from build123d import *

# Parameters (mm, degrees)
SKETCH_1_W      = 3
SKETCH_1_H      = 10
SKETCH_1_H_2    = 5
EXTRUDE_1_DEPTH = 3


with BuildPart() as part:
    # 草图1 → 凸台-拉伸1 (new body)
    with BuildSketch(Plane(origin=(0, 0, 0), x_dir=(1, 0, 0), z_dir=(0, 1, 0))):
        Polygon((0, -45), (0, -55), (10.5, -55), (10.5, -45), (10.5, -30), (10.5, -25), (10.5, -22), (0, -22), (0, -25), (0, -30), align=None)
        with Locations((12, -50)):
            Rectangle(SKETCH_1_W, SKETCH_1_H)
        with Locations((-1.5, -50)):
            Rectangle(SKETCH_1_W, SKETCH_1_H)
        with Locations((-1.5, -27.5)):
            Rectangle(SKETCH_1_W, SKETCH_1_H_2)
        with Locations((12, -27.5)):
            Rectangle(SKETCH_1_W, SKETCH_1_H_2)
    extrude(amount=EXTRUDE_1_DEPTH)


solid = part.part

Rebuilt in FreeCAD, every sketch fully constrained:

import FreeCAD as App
import Part
import Sketcher
from FreeCAD import Vector


def add_polygon(sketch, points):
    """Adds a closed chain of lines whose ends are joined by coincident constraints."""
    first, n = sketch.GeometryCount, len(points)
    for a, b in zip(points, points[1:] + points[:1]):
        sketch.addGeometry(Part.LineSegment(App.Vector(*a, 0), App.Vector(*b, 0)), False)
    for i in range(n):
        sketch.addConstraint(Sketcher.Constraint("Coincident", first + i, 2, first + (i + 1) % n, 1))

doc = App.newDocument("Part")
params = doc.addObject("Spreadsheet::Sheet", "Params")
for row, (alias, value) in enumerate([
    ("sketch1_width", "3 mm"),
    ("sketch1_height", "10 mm"),
    ("sketch1_height2", "15 mm"),
    ("sketch1_height3", "5 mm"),
    ("sketch1_width2", "10.5 mm"),
    ("pad1_length", "3 mm"),
], start=1):
    params.set(f"A{row}", alias)
    params.set(f"B{row}", "=" + value)
    params.setAlias(f"B{row}", alias)

body = doc.addObject("PartDesign::Body", "Body")

# Sketch on XZ plane
sketch1 = body.newObject("Sketcher::SketchObject", "Sketch")
sketch1.AttachmentSupport = (doc.getObject("XZ_Plane"), [""])
sketch1.MapMode = "FlatFace"
add_polygon(sketch1, [(13.5, 55), (13.5, 45), (10.5, 45), (10.5, 30), (13.5, 30), (13.5, 25), (10.5, 25), (10.5, 22), (0, 22), (0, 25), (-3, 25), (-3, 30), (0, 30), (0, 45), (-3, 45), (-3, 55)])  # lines 0-15
sketch1.addConstraint(Sketcher.Constraint("Vertical", 0))
sketch1.addConstraint(Sketcher.Constraint("Horizontal", 1))
sketch1.addConstraint(Sketcher.Constraint("Vertical", 2))
sketch1.addConstraint(Sketcher.Constraint("Horizontal", 3))
sketch1.addConstraint(Sketcher.Constraint("Vertical", 4))
sketch1.addConstraint(Sketcher.Constraint("Horizontal", 5))
sketch1.addConstraint(Sketcher.Constraint("Vertical", 6))
sketch1.addConstraint(Sketcher.Constraint("Horizontal", 7))
sketch1.addConstraint(Sketcher.Constraint("Vertical", 8))
sketch1.addConstraint(Sketcher.Constraint("Horizontal", 9))
sketch1.addConstraint(Sketcher.Constraint("Vertical", 10))
sketch1.addConstraint(Sketcher.Constraint("Horizontal", 11))
sketch1.addConstraint(Sketcher.Constraint("Vertical", 12))
sketch1.addConstraint(Sketcher.Constraint("Horizontal", 13))
sketch1.addConstraint(Sketcher.Constraint("Vertical", 14))
sketch1.addConstraint(Sketcher.Constraint("Horizontal", 15))
sketch1.addConstraint(Sketcher.Constraint("PointOnObject", 7, 2, -2))
sketch1.addConstraint(Sketcher.Constraint("PointOnObject", 11, 2, -2))
sketch1.addConstraint(Sketcher.Constraint("Horizontal", 5, 2, 8, 2))
sketch1.addConstraint(Sketcher.Constraint("Horizontal", 3, 2, 10, 2))
sketch1.addConstraint(Sketcher.Constraint("Horizontal", 1, 2, 12, 2))
sketch1.addConstraint(Sketcher.Constraint("Vertical", 0, 2, 3, 2))
sketch1.addConstraint(Sketcher.Constraint("Vertical", 2, 2, 5, 2))
sketch1.addConstraint(Sketcher.Constraint("Vertical", 10, 2, 13, 2))
sketch1.addConstraint(Sketcher.Constraint("Equal", 5, 9))
sketch1.addConstraint(Sketcher.Constraint("Equal", 13, 6))
sketch1.addConstraint(Sketcher.Constraint("DistanceX", 1, 2, 1, 1, 3.0))
sketch1.addConstraint(Sketcher.Constraint("DistanceY", 0, 2, 0, 1, 10.0))
sketch1.addConstraint(Sketcher.Constraint("DistanceY", 2, 2, 2, 1, 15.0))
sketch1.addConstraint(Sketcher.Constraint("DistanceY", 4, 2, 4, 1, 5.0))
sketch1.addConstraint(Sketcher.Constraint("DistanceX", 7, 2, 7, 1, 10.5))
sketch1.addConstraint(Sketcher.Constraint("DistanceY", -1, 1, 0, 2, 45.0))
sketch1.setExpression("Constraints[42]", "Params.sketch1_width")
sketch1.setExpression("Constraints[43]", "Params.sketch1_height")
sketch1.setExpression("Constraints[44]", "Params.sketch1_height2")
sketch1.setExpression("Constraints[45]", "Params.sketch1_height3")
sketch1.setExpression("Constraints[46]", "Params.sketch1_width2")
pad1 = body.newObject("PartDesign::Pad", "Pad")
pad1.Profile = sketch1
pad1.setExpression("Length", "Params.pad1_length")
pad1.Reversed = True

doc.recompute()
